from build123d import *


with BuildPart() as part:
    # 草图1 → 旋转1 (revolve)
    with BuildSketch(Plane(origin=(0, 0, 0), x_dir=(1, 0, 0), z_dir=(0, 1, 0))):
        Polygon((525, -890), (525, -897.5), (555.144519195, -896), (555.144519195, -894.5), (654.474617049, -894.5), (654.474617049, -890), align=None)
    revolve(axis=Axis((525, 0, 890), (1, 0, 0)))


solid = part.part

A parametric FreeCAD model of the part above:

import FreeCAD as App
import Part
import Sketcher
from FreeCAD import Vector
Q = App.Units.Quantity


def add_polygon(sketch, points):
    """Adds a closed chain of lines whose ends are joined by coincident constraints."""
    first, n = sketch.GeometryCount, len(points)
    for a, b in zip(points, points[1:] + points[:1]):
        sketch.addGeometry(Part.LineSegment(App.Vector(*a, 0), App.Vector(*b, 0)), False)
    for i in range(n):
        sketch.addConstraint(Sketcher.Constraint("Coincident", first + i, 2, first + (i + 1) % n, 1))

doc = App.newDocument("Part")
body = doc.addObject("PartDesign::Body", "Body")

sketch1 = body.newObject("Sketcher::SketchObject", "Sketch")
sketch1.AttachmentSupport = (doc.getObject("XZ_Plane"), [""])
sketch1.MapMode = "FlatFace"
add_polygon(sketch1, [(525, 890), (525, 897.5), (555.1, 896), (555.1, 894.5), (654.5, 894.5), (654.5, 890)])
sketch1.addGeometry(Part.LineSegment(Vector(525, 890, 0), Vector(654.5, 890, 0)), True)
sketch1.addConstraint([
    Sketcher.Constraint("Vertical", 0),
    Sketcher.Constraint("Vertical", 2),
    Sketcher.Constraint("Horizontal", 3),
    Sketcher.Constraint("Vertical", 4),
    Sketcher.Constraint("Horizontal", 5),
    Sketcher.Constraint("Horizontal", 6),
    Sketcher.Constraint("Coincident", 6, 1, 5, 2),
    Sketcher.Constraint("Vertical", 3, 2, 6, 2),
    Sketcher.Constraint("DistanceY", 0, 1, 0, 2, Q("7.5 mm")),
    Sketcher.Constraint("DistanceY", 2, 2, 2, 1, Q("1.5 mm")),
    Sketcher.Constraint("DistanceY", 4, 2, 4, 1, Q("4.5 mm")),
    Sketcher.Constraint("DistanceX", -1, 1, 0, 2, Q("525 mm")),
    Sketcher.Constraint("DistanceY", -1, 1, 1, 2, Q("896 mm")),
    Sketcher.Constraint("DistanceX", 3, 1, 3, 2, Q("99.330098 mm")),
    Sketcher.Constraint("DistanceX", 5, 2, 5, 1, Q("129.474617 mm")),
])
revolution = body.newObject("PartDesign::Revolution", "Revolution")
revolution.Profile = sketch1
revolution.ReferenceAxis = (sketch1, ["Axis0"])
revolution.Angle = 360

doc.recompute()
